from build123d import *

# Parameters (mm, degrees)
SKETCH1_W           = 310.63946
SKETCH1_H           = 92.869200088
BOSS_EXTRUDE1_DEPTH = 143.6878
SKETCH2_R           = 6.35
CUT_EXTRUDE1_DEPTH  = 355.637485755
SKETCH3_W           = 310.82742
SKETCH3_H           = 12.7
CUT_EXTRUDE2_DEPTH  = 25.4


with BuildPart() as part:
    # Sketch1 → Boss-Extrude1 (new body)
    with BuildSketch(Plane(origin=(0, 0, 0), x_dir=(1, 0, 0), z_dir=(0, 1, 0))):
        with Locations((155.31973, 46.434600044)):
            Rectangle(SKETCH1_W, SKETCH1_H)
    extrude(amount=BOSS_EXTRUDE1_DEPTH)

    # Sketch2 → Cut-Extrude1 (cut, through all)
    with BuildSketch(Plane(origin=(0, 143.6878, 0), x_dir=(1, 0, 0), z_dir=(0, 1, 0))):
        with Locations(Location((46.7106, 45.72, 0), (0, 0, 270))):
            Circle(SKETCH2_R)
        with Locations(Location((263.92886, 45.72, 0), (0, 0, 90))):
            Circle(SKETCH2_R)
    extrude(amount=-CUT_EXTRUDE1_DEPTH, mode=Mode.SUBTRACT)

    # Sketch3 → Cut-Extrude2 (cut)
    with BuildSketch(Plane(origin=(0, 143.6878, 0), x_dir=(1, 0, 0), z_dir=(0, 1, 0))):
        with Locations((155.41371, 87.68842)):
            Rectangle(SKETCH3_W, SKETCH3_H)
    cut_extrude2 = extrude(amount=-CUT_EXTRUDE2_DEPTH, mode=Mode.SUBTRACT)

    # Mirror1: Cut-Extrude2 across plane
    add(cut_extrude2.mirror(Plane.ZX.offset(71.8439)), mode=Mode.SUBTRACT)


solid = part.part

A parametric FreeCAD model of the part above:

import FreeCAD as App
import Part
import Sketcher
Q = App.Units.Quantity

doc = App.newDocument("Part")
body = doc.addObject("PartDesign::Body", "Body")

# Sketch on XZ plane
sketch1 = body.newObject("Sketcher::SketchObject", "Sketch")
sketch1.AttachmentSupport = (doc.getObject("XZ_Plane"), [""])
sketch1.MapMode = "FlatFace"
sketch1.addGeometry(Part.LineSegment(App.Vector(0, -93, 0), App.Vector(0, 0, 0)), False)
sketch1.addGeometry(Part.LineSegment(App.Vector(0, 0, 0), App.Vector(311, 0, 0)), False)
sketch1.addGeometry(Part.LineSegment(App.Vector(311, 0, 0), App.Vector(311, -93, 0)), False)
sketch1.addGeometry(Part.LineSegment(App.Vector(311, -93, 0), App.Vector(0, -93, 0)), False)
sketch1.addConstraint(Sketcher.Constraint("Coincident", 0, 2, 1, 1))
sketch1.addConstraint(Sketcher.Constraint("Coincident", 1, 2, 2, 1))
sketch1.addConstraint(Sketcher.Constraint("Coincident", 2, 2, 3, 1))
sketch1.addConstraint(Sketcher.Constraint("Coincident", 3, 2, 0, 1))
sketch1.addConstraint(Sketcher.Constraint("Vertical", 0))
sketch1.addConstraint(Sketcher.Constraint("Horizontal", 1))
sketch1.addConstraint(Sketcher.Constraint("Vertical", 2))
sketch1.addConstraint(Sketcher.Constraint("Horizontal", 3))
sketch1.addConstraint(Sketcher.Constraint("Coincident", 0, 2, -1, 1))
sketch1.addConstraint(Sketcher.Constraint("DistanceX", 1, 1, 1, 2, Q("12.2299 in")))
sketch1.addConstraint(Sketcher.Constraint("DistanceY", 0, 1, 0, 2, Q("92.8692 mm")))
pad1 = body.newObject("PartDesign::Pad", "Pad")
pad1.Profile = sketch1
pad1.Length = Q("5.657 in")
pad1.Reversed = True

# Sketch on XZ plane
sketch2 = body.newObject("Sketcher::SketchObject", "Sketch001")
sketch2.AttachmentSupport = (doc.getObject("XZ_Plane"), [""])
sketch2.MapMode = "FlatFace"
sketch2.AttachmentOffset = App.Placement(App.Vector(0, 0, -5.657 * 25.4), App.Rotation())
sketch2.addGeometry(Part.Circle(App.Vector(47, -46, 0), App.Vector(0, 0, 1), 6), False)
sketch2.addGeometry(Part.Circle(App.Vector(264, -46, 0), App.Vector(0, 0, 1), 6), False)
sketch2.addConstraint(Sketcher.Constraint("Equal", 0, 1))
sketch2.addConstraint(Sketcher.Constraint("Horizontal", 0, 3, 1, 3))
sketch2.addConstraint(Sketcher.Constraint("Diameter", 0, Q("0.5 in")))
sketch2.addConstraint(Sketcher.Constraint("DistanceY", 0, 3, -1, 1, Q("1.8 in")))
sketch2.addConstraint(Sketcher.Constraint("DistanceX", -1, 1, 0, 3, Q("1.839 in")))
sketch2.addConstraint(Sketcher.Constraint("DistanceX", -1, 1, 1, 3, Q("10.3909 in")))
pocket1 = body.newObject("PartDesign::Pocket", "Pocket")
pocket1.Profile = sketch2
pocket1.Type = "ThroughAll"
pocket1.Reversed = True

# Sketch on XZ plane
sketch3 = body.newObject("Sketcher::SketchObject", "Sketch002")
sketch3.AttachmentSupport = (doc.getObject("XZ_Plane"), [""])
sketch3.MapMode = "FlatFace"
sketch3.AttachmentOffset = App.Placement(App.Vector(0, 0, -5.657 * 25.4), App.Rotation())
sketch3.addGeometry(Part.LineSegment(App.Vector(0, -94, 0), App.Vector(0, -81, 0)), False)
sketch3.addGeometry(Part.LineSegment(App.Vector(0, -81, 0), App.Vector(311, -81, 0)), False)
sketch3.addGeometry(Part.LineSegment(App.Vector(311, -81, 0), App.Vector(311, -94, 0)), False)
sketch3.addGeometry(Part.LineSegment(App.Vector(311, -94, 0), App.Vector(0, -94, 0)), False)
sketch3.addConstraint(Sketcher.Constraint("Coincident", 0, 2, 1, 1))
sketch3.addConstraint(Sketcher.Constraint("Coincident", 1, 2, 2, 1))
sketch3.addConstraint(Sketcher.Constraint("Coincident", 2, 2, 3, 1))
sketch3.addConstraint(Sketcher.Constraint("Coincident", 3, 2, 0, 1))
sketch3.addConstraint(Sketcher.Constraint("Vertical", 0))
sketch3.addConstraint(Sketcher.Constraint("Horizontal", 1))
sketch3.addConstraint(Sketcher.Constraint("Vertical", 2))
sketch3.addConstraint(Sketcher.Constraint("Horizontal", 3))
sketch3.addConstraint(Sketcher.Constraint("PointOnObject", 0, 2, -2))
sketch3.addConstraint(Sketcher.Constraint("DistanceY", 0, 1, 0, 2, Q("0.5 in")))
sketch3.addConstraint(Sketcher.Constraint("DistanceX", 1, 1, 1, 2, Q("12.2373 in")))
sketch3.addConstraint(Sketcher.Constraint("DistanceY", 0, 2, -1, 1, Q("3.2023 in")))
pocket2 = body.newObject("PartDesign::Pocket", "Pocket001")
pocket2.Profile = sketch3
pocket2.Length = Q("1 in")
pocket2.Reversed = True
doc.recompute()

datumplane = body.newObject("PartDesign::Plane", "DatumPlane")
datumplane.AttachmentSupport = (doc.getObject("XZ_Plane"), [""])
datumplane.MapMode = "FlatFace"
datumplane.AttachmentOffset = App.Placement(App.Vector(0, 0, -2.8285 * 25.4), App.Rotation())
mirrored = body.newObject("PartDesign::Mirrored", "Mirrored")
mirrored.Originals = [pocket2]
mirrored.MirrorPlane = (datumplane, [""])
body.Tip = mirrored

doc.recompute()
